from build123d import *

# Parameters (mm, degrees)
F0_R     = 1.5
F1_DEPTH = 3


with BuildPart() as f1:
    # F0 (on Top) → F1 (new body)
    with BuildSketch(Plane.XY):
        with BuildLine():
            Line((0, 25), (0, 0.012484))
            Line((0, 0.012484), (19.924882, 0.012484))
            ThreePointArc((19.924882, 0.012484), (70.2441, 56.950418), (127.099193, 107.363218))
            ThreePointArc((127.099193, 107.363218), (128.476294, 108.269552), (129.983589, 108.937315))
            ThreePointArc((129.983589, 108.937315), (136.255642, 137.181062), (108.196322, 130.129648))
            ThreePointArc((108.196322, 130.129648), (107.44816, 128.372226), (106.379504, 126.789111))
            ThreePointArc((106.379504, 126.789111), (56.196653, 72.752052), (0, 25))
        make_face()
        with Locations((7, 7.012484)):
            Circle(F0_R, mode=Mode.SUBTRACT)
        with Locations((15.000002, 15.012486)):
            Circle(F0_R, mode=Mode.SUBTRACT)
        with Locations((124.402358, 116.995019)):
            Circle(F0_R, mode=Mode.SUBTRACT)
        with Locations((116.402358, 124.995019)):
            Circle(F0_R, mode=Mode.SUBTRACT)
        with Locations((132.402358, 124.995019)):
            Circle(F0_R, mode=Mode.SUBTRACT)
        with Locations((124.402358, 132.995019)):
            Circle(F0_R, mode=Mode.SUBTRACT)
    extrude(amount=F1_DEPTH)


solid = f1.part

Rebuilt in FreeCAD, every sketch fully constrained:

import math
import FreeCAD as App
import Part
import Sketcher
from FreeCAD import Vector

doc = App.newDocument("Part")
body = doc.addObject("PartDesign::Body", "Body")

# Sketch on XY plane
sketch1 = body.newObject("Sketcher::SketchObject", "Sketch")
sketch1.AttachmentSupport = (doc.getObject("XY_Plane"), [""])
sketch1.MapMode = "FlatFace"
sketch1.addGeometry(Part.LineSegment(Vector(0, 25, 0), Vector(0, 0.012484, 0)), False)
sketch1.addGeometry(Part.LineSegment(Vector(0, 0.012484, 0), Vector(19.924882, 0.012484, 0)), False)
sketch1.addGeometry(Part.ArcOfCircle(Part.Circle(Vector(512.682853, -384.76122, 0), Vector(0, 0, 1), 625.188949), math.radians(128.079), math.radians(142.015239)), False)
sketch1.addGeometry(Part.ArcOfCircle(Part.Circle(Vector(133.266679, 99.491588, 0), Vector(0, 0, 1), 10.000022), math.radians(109.166124), math.radians(128.078984)), False)
sketch1.addGeometry(Part.ArcOfCircle(Part.Circle(Vector(124.402357, 124.995019, 0), Vector(0, 0, 1), 17), math.radians(-70.833906), math.radians(162.420009)), False)
sketch1.addGeometry(Part.ArcOfCircle(Part.Circle(Vector(98.663358, 133.150017, 0), Vector(0, 0, 1), 10.000001), math.radians(-39.50091), math.radians(-17.57998)), False)
sketch1.addGeometry(Part.ArcOfCircle(Part.Circle(Vector(-376.025298, 524.465956, 0), Vector(0, 0, 1), 625.188984), math.radians(-53.025565), math.radians(-39.50092)), False)
sketch1.addGeometry(Part.Circle(Vector(7, 7.012484, 0), Vector(0, 0, 1), 1.5), False)
sketch1.addGeometry(Part.Circle(Vector(15.000002, 15.012486, 0), Vector(0, 0, 1), 1.5), False)
sketch1.addGeometry(Part.Circle(Vector(124.402358, 116.995019, 0), Vector(0, 0, 1), 1.5), False)
sketch1.addGeometry(Part.Circle(Vector(116.402358, 124.995019, 0), Vector(0, 0, 1), 1.5), False)
sketch1.addGeometry(Part.Circle(Vector(132.402358, 124.995019, 0), Vector(0, 0, 1), 1.5), False)
sketch1.addGeometry(Part.Circle(Vector(124.402358, 132.995019, 0), Vector(0, 0, 1), 1.5), False)
sketch1.addConstraint(Sketcher.Constraint("Coincident", 0, 2, 1, 1))
sketch1.addConstraint(Sketcher.Constraint("Coincident", 1, 2, 2, 2))
sketch1.addConstraint(Sketcher.Constraint("Tangent", 2, 1, 3, 2))
sketch1.addConstraint(Sketcher.Constraint("Tangent", 3, 1, 4, 1))
sketch1.addConstraint(Sketcher.Constraint("Tangent", 4, 2, 5, 2))
sketch1.addConstraint(Sketcher.Constraint("Tangent", 5, 1, 6, 2))
sketch1.addConstraint(Sketcher.Constraint("Coincident", 6, 1, 0, 1))
sketch1.addConstraint(Sketcher.Constraint("Vertical", 0))
sketch1.addConstraint(Sketcher.Constraint("Horizontal", 1))
sketch1.addConstraint(Sketcher.Constraint("Equal", 7, 8))
sketch1.addConstraint(Sketcher.Constraint("Equal", 8, 9))
sketch1.addConstraint(Sketcher.Constraint("Equal", 9, 10))
sketch1.addConstraint(Sketcher.Constraint("Equal", 10, 11))
sketch1.addConstraint(Sketcher.Constraint("Equal", 11, 12))
sketch1.addConstraint(Sketcher.Constraint("PointOnObject", 0, 2, -2))
sketch1.addConstraint(Sketcher.Constraint("Horizontal", 4, 3, 10, 3))
sketch1.addConstraint(Sketcher.Constraint("Horizontal", 10, 3, 11, 3))
sketch1.addConstraint(Sketcher.Constraint("Vertical", 4, 3, 9, 3))
sketch1.addConstraint(Sketcher.Constraint("Vertical", 9, 3, 12, 3))
sketch1.addConstraint(Sketcher.Constraint("Diameter", 7, 3.0))
sketch1.addConstraint(Sketcher.Constraint("Radius", 4, 17.0))
sketch1.addConstraint(Sketcher.Constraint("Radius", 5, 10.000001))
sketch1.addConstraint(Sketcher.Constraint("DistanceX", -1, 1, 7, 3, 7.0))
sketch1.addConstraint(Sketcher.Constraint("DistanceY", 9, 3, 4, 3, 8.0))
sketch1.addConstraint(Sketcher.Constraint("DistanceX", 10, 3, 4, 3, 7.999999))
sketch1.addConstraint(Sketcher.Constraint("DistanceX", 4, 3, 11, 3, 8.000001))
sketch1.addConstraint(Sketcher.Constraint("DistanceY", 4, 3, 12, 3, 8.0))
sketch1.addConstraint(Sketcher.Constraint("DistanceY", 0, 2, 7, 3, 7.0))
sketch1.addConstraint(Sketcher.Constraint("Radius", 2, 625.188949))
sketch1.addConstraint(Sketcher.Constraint("Radius", 3, 10.000022))
sketch1.addConstraint(Sketcher.Constraint("Radius", 6, 625.188984))
sketch1.addConstraint(Sketcher.Constraint("DistanceX", 5, 3, 4, 3, 25.738999))
sketch1.addConstraint(Sketcher.Constraint("DistanceX", 1, 1, 1, 2, 19.924882))
sketch1.addConstraint(Sketcher.Constraint("DistanceY", 8, 3, 3, 3, 84.479102))
sketch1.addConstraint(Sketcher.Constraint("DistanceY", 0, 2, 0, 1, 24.987516))
sketch1.addConstraint(Sketcher.Constraint("DistanceY", 2, 3, -1, 1, 384.76122))
sketch1.addConstraint(Sketcher.Constraint("DistanceX", -1, 1, 3, 3, 133.266679))
sketch1.addConstraint(Sketcher.Constraint("DistanceY", -1, 1, 4, 3, 124.995019))
sketch1.addConstraint(Sketcher.Constraint("DistanceX", -1, 1, 5, 3, 98.663358))
sketch1.addConstraint(Sketcher.Constraint("DistanceX", 8, 3, 2, 3, 497.682851))
pad1 = body.newObject("PartDesign::Pad", "Pad")
pad1.Profile = sketch1
pad1.Length = 3

doc.recompute()
